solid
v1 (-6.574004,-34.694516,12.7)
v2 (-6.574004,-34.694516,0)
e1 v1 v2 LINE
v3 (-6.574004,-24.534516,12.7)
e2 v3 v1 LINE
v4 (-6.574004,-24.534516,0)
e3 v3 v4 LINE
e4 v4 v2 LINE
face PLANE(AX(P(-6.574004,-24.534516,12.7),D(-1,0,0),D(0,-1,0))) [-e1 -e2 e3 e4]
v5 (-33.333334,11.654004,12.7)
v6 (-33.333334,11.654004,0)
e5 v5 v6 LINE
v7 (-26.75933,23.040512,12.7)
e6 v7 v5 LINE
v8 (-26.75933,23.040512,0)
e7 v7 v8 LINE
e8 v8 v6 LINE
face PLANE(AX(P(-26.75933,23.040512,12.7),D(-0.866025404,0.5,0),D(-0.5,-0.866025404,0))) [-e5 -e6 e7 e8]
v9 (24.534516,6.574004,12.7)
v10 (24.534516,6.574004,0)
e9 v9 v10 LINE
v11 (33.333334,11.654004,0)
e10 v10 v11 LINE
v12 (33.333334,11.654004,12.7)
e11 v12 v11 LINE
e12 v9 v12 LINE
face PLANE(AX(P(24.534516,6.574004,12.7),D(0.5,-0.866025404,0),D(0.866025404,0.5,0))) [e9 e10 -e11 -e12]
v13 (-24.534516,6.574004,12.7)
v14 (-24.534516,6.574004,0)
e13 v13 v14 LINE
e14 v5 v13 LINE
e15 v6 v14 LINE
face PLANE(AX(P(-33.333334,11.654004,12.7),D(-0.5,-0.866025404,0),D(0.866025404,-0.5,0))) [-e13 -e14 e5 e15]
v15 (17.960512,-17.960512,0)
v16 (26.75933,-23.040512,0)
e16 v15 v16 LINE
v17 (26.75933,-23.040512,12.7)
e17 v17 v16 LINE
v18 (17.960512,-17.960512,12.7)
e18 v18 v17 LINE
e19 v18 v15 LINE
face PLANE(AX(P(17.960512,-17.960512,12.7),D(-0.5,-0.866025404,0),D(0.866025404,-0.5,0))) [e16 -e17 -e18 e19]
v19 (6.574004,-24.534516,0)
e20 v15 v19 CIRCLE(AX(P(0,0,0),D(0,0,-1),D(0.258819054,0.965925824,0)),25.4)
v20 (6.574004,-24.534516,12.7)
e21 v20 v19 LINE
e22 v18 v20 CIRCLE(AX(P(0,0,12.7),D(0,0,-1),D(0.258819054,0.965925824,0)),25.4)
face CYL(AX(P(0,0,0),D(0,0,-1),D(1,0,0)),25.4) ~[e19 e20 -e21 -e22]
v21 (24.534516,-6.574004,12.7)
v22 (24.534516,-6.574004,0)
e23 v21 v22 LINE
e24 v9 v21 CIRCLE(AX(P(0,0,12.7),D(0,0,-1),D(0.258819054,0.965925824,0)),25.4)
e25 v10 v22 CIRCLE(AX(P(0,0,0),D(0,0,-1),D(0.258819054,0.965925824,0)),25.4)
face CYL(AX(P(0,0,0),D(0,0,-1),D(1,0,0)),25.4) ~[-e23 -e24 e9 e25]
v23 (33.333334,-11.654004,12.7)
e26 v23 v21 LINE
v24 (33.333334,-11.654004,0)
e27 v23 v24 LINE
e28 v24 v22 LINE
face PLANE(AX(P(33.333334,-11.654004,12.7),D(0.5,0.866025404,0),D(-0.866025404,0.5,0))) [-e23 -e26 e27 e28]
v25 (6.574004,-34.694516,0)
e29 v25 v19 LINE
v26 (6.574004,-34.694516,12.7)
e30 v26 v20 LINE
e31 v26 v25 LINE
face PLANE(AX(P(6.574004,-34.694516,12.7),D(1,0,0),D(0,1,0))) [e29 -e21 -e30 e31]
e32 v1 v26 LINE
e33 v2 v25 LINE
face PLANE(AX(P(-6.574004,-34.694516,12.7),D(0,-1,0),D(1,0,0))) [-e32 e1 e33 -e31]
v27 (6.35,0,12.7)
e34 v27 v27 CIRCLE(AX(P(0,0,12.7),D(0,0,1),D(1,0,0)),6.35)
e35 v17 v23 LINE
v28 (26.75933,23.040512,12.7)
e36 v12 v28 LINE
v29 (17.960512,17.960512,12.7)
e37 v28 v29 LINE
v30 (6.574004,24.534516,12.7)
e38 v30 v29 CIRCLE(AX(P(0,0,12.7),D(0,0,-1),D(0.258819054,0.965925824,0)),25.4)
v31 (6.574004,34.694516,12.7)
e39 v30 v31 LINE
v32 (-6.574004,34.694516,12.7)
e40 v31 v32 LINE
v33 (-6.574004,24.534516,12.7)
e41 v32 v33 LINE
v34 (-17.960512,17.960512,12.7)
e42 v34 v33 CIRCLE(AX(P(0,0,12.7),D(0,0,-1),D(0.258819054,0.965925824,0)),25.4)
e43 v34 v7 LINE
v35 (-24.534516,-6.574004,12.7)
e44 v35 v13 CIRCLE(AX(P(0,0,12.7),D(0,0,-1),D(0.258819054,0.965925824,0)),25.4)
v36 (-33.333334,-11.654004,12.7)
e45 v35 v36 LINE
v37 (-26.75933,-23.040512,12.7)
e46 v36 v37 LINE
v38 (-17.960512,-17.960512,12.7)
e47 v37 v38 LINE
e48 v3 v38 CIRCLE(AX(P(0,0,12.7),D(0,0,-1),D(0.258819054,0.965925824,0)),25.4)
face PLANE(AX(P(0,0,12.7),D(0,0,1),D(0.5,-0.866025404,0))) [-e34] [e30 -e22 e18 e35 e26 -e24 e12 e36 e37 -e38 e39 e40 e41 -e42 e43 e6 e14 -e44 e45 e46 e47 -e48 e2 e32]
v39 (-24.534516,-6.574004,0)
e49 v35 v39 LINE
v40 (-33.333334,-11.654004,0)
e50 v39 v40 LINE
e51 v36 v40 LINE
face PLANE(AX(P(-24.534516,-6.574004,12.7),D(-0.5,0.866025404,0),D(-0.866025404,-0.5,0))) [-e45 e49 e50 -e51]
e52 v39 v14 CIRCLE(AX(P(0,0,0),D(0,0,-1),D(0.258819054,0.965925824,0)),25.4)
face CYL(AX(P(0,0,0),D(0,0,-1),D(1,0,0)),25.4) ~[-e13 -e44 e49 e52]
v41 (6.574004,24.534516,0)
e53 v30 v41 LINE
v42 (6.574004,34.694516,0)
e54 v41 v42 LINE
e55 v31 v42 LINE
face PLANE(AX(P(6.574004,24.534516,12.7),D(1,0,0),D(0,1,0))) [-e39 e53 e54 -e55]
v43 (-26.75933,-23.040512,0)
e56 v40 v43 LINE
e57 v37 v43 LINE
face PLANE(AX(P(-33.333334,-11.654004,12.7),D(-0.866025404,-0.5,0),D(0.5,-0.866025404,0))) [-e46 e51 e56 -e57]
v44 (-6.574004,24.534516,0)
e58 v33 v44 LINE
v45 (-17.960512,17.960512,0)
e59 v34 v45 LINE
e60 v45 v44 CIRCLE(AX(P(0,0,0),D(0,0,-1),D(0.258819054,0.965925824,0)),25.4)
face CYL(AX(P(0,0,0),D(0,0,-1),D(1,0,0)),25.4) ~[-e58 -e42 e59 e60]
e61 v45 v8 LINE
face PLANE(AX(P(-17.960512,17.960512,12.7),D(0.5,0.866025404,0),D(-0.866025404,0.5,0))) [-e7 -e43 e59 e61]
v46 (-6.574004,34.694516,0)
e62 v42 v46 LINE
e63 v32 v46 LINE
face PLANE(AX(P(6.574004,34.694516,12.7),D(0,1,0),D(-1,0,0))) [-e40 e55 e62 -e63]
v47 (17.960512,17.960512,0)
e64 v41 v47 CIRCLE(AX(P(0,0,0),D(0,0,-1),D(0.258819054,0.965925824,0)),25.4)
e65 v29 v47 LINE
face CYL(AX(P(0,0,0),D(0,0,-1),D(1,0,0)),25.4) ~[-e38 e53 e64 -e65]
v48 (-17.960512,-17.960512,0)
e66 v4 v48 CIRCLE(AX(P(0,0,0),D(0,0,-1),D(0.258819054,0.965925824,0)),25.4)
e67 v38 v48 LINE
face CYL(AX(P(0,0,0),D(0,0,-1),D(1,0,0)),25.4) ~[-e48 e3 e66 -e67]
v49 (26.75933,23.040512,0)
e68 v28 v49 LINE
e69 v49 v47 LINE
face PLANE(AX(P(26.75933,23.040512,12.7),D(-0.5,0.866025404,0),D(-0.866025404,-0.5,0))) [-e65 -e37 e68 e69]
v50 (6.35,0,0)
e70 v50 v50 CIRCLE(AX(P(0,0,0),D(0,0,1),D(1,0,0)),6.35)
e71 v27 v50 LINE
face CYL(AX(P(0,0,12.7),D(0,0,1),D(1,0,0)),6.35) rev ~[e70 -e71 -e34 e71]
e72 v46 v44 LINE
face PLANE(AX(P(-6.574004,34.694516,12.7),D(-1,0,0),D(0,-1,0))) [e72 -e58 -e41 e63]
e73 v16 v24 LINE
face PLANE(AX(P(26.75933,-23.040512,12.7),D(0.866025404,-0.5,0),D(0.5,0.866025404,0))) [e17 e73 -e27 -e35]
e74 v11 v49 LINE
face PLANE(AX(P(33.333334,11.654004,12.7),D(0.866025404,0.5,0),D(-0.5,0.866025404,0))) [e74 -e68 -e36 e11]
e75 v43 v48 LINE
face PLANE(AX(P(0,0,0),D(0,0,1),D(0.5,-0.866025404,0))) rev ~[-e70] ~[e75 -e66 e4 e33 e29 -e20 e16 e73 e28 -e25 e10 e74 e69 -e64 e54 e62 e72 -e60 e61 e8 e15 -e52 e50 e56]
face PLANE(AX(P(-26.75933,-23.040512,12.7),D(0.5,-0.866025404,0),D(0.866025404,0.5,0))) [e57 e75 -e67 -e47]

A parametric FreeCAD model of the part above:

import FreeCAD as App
import Part
import Sketcher
from FreeCAD import Vector
Q = App.Units.Quantity


def add_polygon(sketch, points):
    """Adds a closed chain of lines whose ends are joined by coincident constraints."""
    first, n = sketch.GeometryCount, len(points)
    for a, b in zip(points, points[1:] + points[:1]):
        sketch.addGeometry(Part.LineSegment(App.Vector(*a, 0), App.Vector(*b, 0)), False)
    for i in range(n):
        sketch.addConstraint(Sketcher.Constraint("Coincident", first + i, 2, first + (i + 1) % n, 1))

doc = App.newDocument("Part")
body = doc.addObject("PartDesign::Body", "Body")

# Sketch on XY plane
sketch1 = doc.addObject("Sketcher::SketchObject", "Sketch")
body.addObject(sketch1)
sketch1.AttachmentSupport = (doc.XY_Plane, [""])
sketch1.MapMode = "FlatFace"
sketch1.addGeometry(Part.Circle(Vector(0, 0, 0), Vector(0, 0, 1), 25), False)
sketch1.addConstraint([
    Sketcher.Constraint("Coincident", 0, 3, -1, 1),
    Sketcher.Constraint("Diameter", 0, Q("2 in")),
])
pad1 = doc.addObject("PartDesign::Pad", "Pad")
body.addObject(pad1)
pad1.Profile = sketch1
pad1.Length = Q("0.5 in")

# Sketch on XY plane
sketch2 = doc.addObject("Sketcher::SketchObject", "Sketch001")
body.addObject(sketch2)
sketch2.AttachmentSupport = (doc.XY_Plane, [""])
sketch2.MapMode = "FlatFace"
sketch2.AttachmentOffset = App.Placement(Vector(0, 0, 0.5 * 25.4), App.Rotation())
add_polygon(sketch2, [(-7, 25), (0, 0), (7, 25), (7, 35), (-7, 35)])  # lines 0-4
sketch2.addConstraint([
    Sketcher.Constraint("Vertical", 2),
    Sketcher.Constraint("Horizontal", 3),
    Sketcher.Constraint("Vertical", 4),
    Sketcher.Constraint("Coincident", 0, 2, -1, 1),
    Sketcher.Constraint("Symmetric", 1, 2, 4, 2, -2),
    Sketcher.Constraint("Distance", 0, Q("1 in")),
    Sketcher.Constraint("DistanceY", 2, 1, 2, 2, Q("0.4 in")),
    Sketcher.Constraint("Angle", 0, Q("-74.999999 deg")),
])
pad2 = doc.addObject("PartDesign::Pad", "Pad001")
body.addObject(pad2)
pad2.Profile = sketch2
pad2.Length = Q("0.5 in")
pad2.Reversed = True
body2 = doc.addObject("PartDesign::Body", "Body001")
doc.recompute()

body2.BaseFeature = body
doc.recompute()

body3 = doc.addObject("PartDesign::Body", "Body002")
body3.BaseFeature = body
body3.Placement = App.Placement(Vector(0, 0, 0), App.Rotation(Vector(0, 0, 1), 60))
boolean = doc.addObject("PartDesign::Boolean", "Boolean")
body2.addObject(boolean)
boolean.Type = "Fuse"
boolean.addObjects([body3])
doc.recompute()

body4 = doc.addObject("PartDesign::Body", "Body003")
body4.BaseFeature = body
body4.Placement = App.Placement(Vector(0, 0, 0), App.Rotation(Vector(0, 0, 1), 120))
boolean2 = doc.addObject("PartDesign::Boolean", "Boolean001")
body2.addObject(boolean2)
boolean2.Type = "Fuse"
boolean2.addObjects([body4])
doc.recompute()

body5 = doc.addObject("PartDesign::Body", "Body004")
body5.BaseFeature = body
body5.Placement = App.Placement(Vector(0, 0, 0), App.Rotation(Vector(0, 0, 1), 180))
boolean3 = doc.addObject("PartDesign::Boolean", "Boolean002")
body2.addObject(boolean3)
boolean3.Type = "Fuse"
boolean3.addObjects([body5])
doc.recompute()

body6 = doc.addObject("PartDesign::Body", "Body005")
body6.BaseFeature = body
body6.Placement = App.Placement(Vector(0, 0, 0), App.Rotation(Vector(0, 0, 1), 240))
boolean4 = doc.addObject("PartDesign::Boolean", "Boolean003")
body2.addObject(boolean4)
boolean4.Type = "Fuse"
boolean4.addObjects([body6])
doc.recompute()

body.Placement = App.Placement(Vector(0, 0, 0), App.Rotation(Vector(0, 0, 1), 300))
boolean5 = doc.addObject("PartDesign::Boolean", "Boolean004")
body2.addObject(boolean5)
boolean5.Type = "Fuse"
boolean5.addObjects([body])

# Sketch on XY plane
sketch3 = doc.addObject("Sketcher::SketchObject", "Sketch002")
body2.addObject(sketch3)
sketch3.AttachmentSupport = (doc.getObject("XY_Plane001"), [""])
sketch3.MapMode = "FlatFace"
sketch3.AttachmentOffset = App.Placement(Vector(0, 0, 0.5 * 25.4), App.Rotation())
sketch3.addGeometry(Part.Circle(Vector(0, 0, 0), Vector(0, 0, 1), 6), False)
sketch3.addConstraint([
    Sketcher.Constraint("Coincident", 0, 3, -1, 1),
    Sketcher.Constraint("Diameter", 0, Q("0.5 in")),
])
pocket1 = doc.addObject("PartDesign::Pocket", "Pocket")
body2.addObject(pocket1)
pocket1.Profile = sketch3
pocket1.Length = Q("1 in")

doc.recompute()
